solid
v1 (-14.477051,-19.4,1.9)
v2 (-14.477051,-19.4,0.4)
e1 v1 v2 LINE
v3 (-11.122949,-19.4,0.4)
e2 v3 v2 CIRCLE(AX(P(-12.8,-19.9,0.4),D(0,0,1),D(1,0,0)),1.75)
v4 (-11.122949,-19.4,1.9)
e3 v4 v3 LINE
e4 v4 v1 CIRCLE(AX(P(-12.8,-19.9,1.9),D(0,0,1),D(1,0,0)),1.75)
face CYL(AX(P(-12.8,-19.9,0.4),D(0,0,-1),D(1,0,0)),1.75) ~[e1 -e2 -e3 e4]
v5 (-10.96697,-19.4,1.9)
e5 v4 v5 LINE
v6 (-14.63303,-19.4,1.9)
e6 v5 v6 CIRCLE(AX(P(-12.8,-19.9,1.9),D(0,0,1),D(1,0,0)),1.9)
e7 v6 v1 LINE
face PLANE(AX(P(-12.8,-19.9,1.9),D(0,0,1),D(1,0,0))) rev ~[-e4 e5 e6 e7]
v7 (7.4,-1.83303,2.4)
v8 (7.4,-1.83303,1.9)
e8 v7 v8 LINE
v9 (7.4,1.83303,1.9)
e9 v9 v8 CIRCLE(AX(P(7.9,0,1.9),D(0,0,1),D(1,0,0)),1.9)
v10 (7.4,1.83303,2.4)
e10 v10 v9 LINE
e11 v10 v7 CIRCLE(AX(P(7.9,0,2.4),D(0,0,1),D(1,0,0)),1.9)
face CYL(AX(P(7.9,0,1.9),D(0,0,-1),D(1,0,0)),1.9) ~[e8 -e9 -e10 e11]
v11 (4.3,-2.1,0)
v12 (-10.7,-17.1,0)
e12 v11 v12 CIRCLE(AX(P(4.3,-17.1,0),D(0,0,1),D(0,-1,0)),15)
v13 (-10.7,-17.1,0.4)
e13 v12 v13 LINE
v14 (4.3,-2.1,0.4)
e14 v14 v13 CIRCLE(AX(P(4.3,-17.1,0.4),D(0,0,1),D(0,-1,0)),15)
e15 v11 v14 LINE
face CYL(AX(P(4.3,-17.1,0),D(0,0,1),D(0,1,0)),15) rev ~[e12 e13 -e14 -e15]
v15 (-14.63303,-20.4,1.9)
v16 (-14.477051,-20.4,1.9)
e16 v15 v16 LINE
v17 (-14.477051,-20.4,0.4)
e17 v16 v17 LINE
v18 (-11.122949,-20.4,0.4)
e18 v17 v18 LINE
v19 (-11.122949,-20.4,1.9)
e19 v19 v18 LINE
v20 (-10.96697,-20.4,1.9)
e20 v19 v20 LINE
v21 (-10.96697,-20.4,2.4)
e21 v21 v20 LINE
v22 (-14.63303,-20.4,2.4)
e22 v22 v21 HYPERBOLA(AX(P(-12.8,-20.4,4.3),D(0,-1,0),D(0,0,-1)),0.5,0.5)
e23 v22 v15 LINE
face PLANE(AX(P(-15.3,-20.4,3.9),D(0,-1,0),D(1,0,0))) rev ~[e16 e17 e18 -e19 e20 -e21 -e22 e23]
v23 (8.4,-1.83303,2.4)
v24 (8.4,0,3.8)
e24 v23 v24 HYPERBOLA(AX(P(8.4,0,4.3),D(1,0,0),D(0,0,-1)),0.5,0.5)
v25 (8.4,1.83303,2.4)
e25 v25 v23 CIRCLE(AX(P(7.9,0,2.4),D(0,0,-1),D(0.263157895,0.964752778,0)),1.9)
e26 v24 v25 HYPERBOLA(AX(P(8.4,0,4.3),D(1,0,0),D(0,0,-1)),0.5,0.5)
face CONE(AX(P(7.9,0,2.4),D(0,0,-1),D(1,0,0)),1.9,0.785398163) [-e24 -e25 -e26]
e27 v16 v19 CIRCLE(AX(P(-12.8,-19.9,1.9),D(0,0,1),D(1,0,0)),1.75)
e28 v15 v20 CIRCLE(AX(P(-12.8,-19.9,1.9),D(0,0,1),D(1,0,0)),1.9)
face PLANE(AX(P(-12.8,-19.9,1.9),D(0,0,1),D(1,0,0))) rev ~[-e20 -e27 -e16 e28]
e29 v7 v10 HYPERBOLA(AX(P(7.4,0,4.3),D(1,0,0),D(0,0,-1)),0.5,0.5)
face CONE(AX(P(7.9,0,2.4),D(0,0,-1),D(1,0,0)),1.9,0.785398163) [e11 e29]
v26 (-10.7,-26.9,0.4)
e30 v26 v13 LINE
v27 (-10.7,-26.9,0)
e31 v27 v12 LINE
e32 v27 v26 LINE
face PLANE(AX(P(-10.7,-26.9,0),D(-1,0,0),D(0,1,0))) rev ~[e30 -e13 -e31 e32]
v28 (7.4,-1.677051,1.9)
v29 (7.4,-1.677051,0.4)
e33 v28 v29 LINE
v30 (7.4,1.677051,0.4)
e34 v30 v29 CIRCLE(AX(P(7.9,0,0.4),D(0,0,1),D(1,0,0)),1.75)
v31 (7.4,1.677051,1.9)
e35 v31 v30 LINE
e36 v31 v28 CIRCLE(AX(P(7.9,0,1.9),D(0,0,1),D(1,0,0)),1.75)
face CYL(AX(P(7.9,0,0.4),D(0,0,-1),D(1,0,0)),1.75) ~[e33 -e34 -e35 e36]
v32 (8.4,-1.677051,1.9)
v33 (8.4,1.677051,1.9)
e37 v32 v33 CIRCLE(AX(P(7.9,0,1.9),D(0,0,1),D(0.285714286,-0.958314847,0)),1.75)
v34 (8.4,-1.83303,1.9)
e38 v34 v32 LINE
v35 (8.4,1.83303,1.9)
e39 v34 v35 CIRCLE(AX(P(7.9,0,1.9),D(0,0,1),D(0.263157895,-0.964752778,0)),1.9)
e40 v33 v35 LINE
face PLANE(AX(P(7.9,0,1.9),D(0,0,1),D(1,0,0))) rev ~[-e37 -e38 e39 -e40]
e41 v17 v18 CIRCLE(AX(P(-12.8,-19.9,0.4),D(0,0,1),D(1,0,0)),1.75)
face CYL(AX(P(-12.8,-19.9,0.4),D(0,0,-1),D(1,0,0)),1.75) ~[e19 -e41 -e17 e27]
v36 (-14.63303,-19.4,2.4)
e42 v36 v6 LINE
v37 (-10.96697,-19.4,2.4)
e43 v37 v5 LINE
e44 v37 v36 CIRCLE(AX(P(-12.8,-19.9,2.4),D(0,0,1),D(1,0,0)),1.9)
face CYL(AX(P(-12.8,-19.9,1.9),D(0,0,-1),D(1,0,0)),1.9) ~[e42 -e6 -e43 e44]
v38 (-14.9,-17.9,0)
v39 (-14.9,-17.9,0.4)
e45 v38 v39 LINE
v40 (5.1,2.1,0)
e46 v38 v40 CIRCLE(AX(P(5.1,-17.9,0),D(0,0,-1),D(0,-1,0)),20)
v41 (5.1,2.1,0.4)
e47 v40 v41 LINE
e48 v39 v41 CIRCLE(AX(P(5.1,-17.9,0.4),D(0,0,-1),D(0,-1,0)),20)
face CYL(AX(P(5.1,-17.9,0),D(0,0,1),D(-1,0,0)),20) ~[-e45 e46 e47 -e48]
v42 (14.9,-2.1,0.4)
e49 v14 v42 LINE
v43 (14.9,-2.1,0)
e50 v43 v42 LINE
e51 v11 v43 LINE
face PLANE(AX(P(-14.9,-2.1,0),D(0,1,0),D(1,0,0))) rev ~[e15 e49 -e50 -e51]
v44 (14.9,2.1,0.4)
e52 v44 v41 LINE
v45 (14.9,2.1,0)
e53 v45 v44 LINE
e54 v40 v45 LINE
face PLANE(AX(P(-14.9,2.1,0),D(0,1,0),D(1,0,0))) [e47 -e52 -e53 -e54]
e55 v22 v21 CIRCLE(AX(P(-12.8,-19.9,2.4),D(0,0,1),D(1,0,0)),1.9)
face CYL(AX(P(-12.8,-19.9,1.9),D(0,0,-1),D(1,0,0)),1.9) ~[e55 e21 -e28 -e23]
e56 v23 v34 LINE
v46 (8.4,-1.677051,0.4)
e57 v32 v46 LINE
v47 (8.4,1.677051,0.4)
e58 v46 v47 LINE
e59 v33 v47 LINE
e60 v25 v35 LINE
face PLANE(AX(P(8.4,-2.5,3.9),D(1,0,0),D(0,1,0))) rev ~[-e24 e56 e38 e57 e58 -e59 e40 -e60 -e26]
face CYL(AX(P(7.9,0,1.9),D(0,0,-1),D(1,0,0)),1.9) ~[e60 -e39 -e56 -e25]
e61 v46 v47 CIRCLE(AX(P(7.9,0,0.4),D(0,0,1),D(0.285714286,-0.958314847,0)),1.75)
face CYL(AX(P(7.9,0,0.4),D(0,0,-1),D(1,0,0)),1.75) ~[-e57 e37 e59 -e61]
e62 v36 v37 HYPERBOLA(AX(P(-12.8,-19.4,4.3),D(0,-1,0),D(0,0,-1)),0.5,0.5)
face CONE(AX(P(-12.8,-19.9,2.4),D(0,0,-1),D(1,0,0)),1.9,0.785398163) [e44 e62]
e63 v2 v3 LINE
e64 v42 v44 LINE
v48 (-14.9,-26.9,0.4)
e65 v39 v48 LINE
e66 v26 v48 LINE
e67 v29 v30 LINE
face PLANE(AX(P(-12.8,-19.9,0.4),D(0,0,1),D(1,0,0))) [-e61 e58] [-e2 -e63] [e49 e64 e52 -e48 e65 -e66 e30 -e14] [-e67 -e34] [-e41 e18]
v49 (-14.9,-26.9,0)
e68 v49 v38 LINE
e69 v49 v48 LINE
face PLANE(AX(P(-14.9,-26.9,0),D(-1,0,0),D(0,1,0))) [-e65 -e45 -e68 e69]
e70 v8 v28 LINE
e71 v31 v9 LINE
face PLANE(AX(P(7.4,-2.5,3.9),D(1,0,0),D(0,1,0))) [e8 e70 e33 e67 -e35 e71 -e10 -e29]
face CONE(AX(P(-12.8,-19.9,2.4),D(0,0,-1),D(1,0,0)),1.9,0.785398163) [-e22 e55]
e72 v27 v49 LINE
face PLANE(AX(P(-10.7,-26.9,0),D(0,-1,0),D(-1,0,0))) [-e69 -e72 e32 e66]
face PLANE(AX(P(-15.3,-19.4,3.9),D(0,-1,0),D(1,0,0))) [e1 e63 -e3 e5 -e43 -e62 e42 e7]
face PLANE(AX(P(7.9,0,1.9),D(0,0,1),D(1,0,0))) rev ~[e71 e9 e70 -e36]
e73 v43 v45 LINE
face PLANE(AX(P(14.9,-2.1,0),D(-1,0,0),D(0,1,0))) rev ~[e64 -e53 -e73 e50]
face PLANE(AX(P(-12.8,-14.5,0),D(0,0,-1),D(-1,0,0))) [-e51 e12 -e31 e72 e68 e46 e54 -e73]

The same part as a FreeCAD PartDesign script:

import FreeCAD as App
import Part
import Sketcher

V = App.Vector


def edges_at(feature, points):
    """Names of the edges that pass closest to the given points."""
    edges = feature.Shape.Edges
    near = lambda p: min(range(len(edges)), key=lambda i: edges[i].distToShape(Part.Vertex(*p))[0])
    return sorted({f"Edge{near(p) + 1}" for p in points})

doc = App.newDocument("Part")
body = doc.addObject("PartDesign::Body", "Body")

sketch1 = doc.addObject("Sketcher::SketchObject", "Sketch")
body.addObject(sketch1)
sketch1.AttachmentSupport = (doc.XY_Plane, [""])
sketch1.MapMode = "FlatFace"
sketch1.addGeometry([
    Part.LineSegment(V(-14.9, 2.1, 0), V(-14.9, -2.1, 0)),
    Part.LineSegment(V(-14.9, -2.1, 0), V(14.9, -2.1, 0)),
    Part.LineSegment(V(14.9, -2.1, 0), V(14.9, 2.1, 0)),
    Part.LineSegment(V(14.9, 2.1, 0), V(-14.9, 2.1, 0)),
], False)
sketch1.addConstraint([
    Sketcher.Constraint("Coincident", 0, 2, 1, 1),
    Sketcher.Constraint("Coincident", 1, 2, 2, 1),
    Sketcher.Constraint("Coincident", 2, 2, 3, 1),
    Sketcher.Constraint("Coincident", 3, 2, 0, 1),
    Sketcher.Constraint("Vertical", 0),
    Sketcher.Constraint("Horizontal", 1),
    Sketcher.Constraint("Vertical", 2),
    Sketcher.Constraint("Horizontal", 3),
    Sketcher.Constraint("Symmetric", 0, 2, 2, 2, -1, 1),
    Sketcher.Constraint("DistanceX", 1, 1, 1, 2, 29.8),
    Sketcher.Constraint("DistanceY", 0, 2, 0, 1, 4.2),
])
pad1 = doc.addObject("PartDesign::Pad", "Pad")
body.addObject(pad1)
pad1.Profile = sketch1
pad1.Length = 0.4

sketch2 = doc.addObject("Sketcher::SketchObject", "Sketch001")
body.addObject(sketch2)
sketch2.AttachmentSupport = (doc.XY_Plane, [""])
sketch2.MapMode = "FlatFace"
sketch2.AttachmentOffset = App.Placement(V(0, 0, 0.4), App.Rotation())
sketch2.addGeometry(Part.Circle(V(7.9, 0, 0), V(0, 0, 1), 1.75), False)
sketch2.addConstraint([
    Sketcher.Constraint("PointOnObject", 0, 3, -1),
    Sketcher.Constraint("Diameter", 0, 3.5),
    Sketcher.Constraint("DistanceX", -1, 1, 0, 3, 7.9),
])
pad2 = doc.addObject("PartDesign::Pad", "Pad001")
body.addObject(pad2)
pad2.Profile = sketch2
pad2.Length = 1.5

sketch3 = doc.addObject("Sketcher::SketchObject", "Sketch002")
body.addObject(sketch3)
sketch3.AttachmentSupport = (doc.XY_Plane, [""])
sketch3.MapMode = "FlatFace"
sketch3.AttachmentOffset = App.Placement(V(0, 0, 1.9), App.Rotation())
sketch3.addGeometry(Part.Circle(V(7.9, 0, 0), V(0, 0, 1), 1.9), False)
sketch3.addConstraint([
    Sketcher.Constraint("PointOnObject", 0, 3, -1),
    Sketcher.Constraint("Diameter", 0, 3.8),
    Sketcher.Constraint("DistanceX", -1, 1, 0, 3, 7.9),
])
pad3 = doc.addObject("PartDesign::Pad", "Pad002")
body.addObject(pad3)
pad3.Profile = sketch3
pad3.Length = 2
doc.recompute()

chamfer = doc.addObject("PartDesign::Chamfer", "Chamfer")
body.addObject(chamfer)
chamfer.Base = (pad3, edges_at(pad3, [(6, 0, 3.9)]))
chamfer.Size = 1.5

sketch4 = doc.addObject("Sketcher::SketchObject", "Sketch003")
body.addObject(sketch4)
sketch4.AttachmentSupport = (doc.XY_Plane, [""])
sketch4.MapMode = "FlatFace"
sketch4.AttachmentOffset = App.Placement(V(0, 0, 3.9), App.Rotation())
sketch4.addGeometry([
    Part.LineSegment(V(7.4, 2.5, 0), V(7.4, -2.5, 0)),
    Part.LineSegment(V(7.4, -2.5, 0), V(8.4, -2.5, 0)),
    Part.LineSegment(V(8.4, -2.5, 0), V(8.4, 2.5, 0)),
    Part.LineSegment(V(8.4, 2.5, 0), V(7.4, 2.5, 0)),
], False)
sketch4.addConstraint([
    Sketcher.Constraint("Coincident", 0, 2, 1, 1),
    Sketcher.Constraint("Coincident", 1, 2, 2, 1),
    Sketcher.Constraint("Coincident", 2, 2, 3, 1),
    Sketcher.Constraint("Coincident", 3, 2, 0, 1),
    Sketcher.Constraint("Vertical", 0),
    Sketcher.Constraint("Horizontal", 1),
    Sketcher.Constraint("Vertical", 2),
    Sketcher.Constraint("Horizontal", 3),
    Sketcher.Constraint("DistanceX", 1, 1, 1, 2, 1.0),
    Sketcher.Constraint("DistanceY", 0, 2, 0, 1, 5.0),
    Sketcher.Constraint("DistanceX", -1, 1, 0, 2, 7.4),
    Sketcher.Constraint("DistanceY", 0, 2, -1, 1, 2.5),
])
pocket1 = doc.addObject("PartDesign::Pocket", "Pocket")
body.addObject(pocket1)
pocket1.Profile = sketch4
pocket1.Length = 3.5

sketch5 = doc.addObject("Sketcher::SketchObject", "Sketch004")
body.addObject(sketch5)
sketch5.AttachmentSupport = (doc.XY_Plane, [""])
sketch5.MapMode = "FlatFace"
sketch5.addGeometry([
    Part.LineSegment(V(-10.7, -2.1, 0), V(-10.7, -26.9, 0)),
    Part.LineSegment(V(-10.7, -26.9, 0), V(-14.9, -26.9, 0)),
    Part.LineSegment(V(-14.9, -26.9, 0), V(-14.9, -2.1, 0)),
    Part.LineSegment(V(-14.9, -2.1, 0), V(-10.7, -2.1, 0)),
], False)
sketch5.addConstraint([
    Sketcher.Constraint("Coincident", 0, 2, 1, 1),
    Sketcher.Constraint("Coincident", 1, 2, 2, 1),
    Sketcher.Constraint("Coincident", 2, 2, 3, 1),
    Sketcher.Constraint("Coincident", 3, 2, 0, 1),
    Sketcher.Constraint("Vertical", 0),
    Sketcher.Constraint("Horizontal", 1),
    Sketcher.Constraint("Vertical", 2),
    Sketcher.Constraint("Horizontal", 3),
    Sketcher.Constraint("DistanceX", 1, 2, 1, 1, 4.2),
    Sketcher.Constraint("DistanceY", 0, 2, 0, 1, 24.8),
    Sketcher.Constraint("DistanceX", 0, 2, -1, 1, 10.7),
    Sketcher.Constraint("DistanceY", 0, 2, -1, 1, 26.9),
])
pad4 = doc.addObject("PartDesign::Pad", "Pad003")
body.addObject(pad4)
pad4.Profile = sketch5
pad4.Length = 0.4

sketch6 = doc.addObject("Sketcher::SketchObject", "Sketch005")
body.addObject(sketch6)
sketch6.AttachmentSupport = (doc.XY_Plane, [""])
sketch6.MapMode = "FlatFace"
sketch6.AttachmentOffset = App.Placement(V(0, 0, 0.4), App.Rotation())
sketch6.addGeometry(Part.Circle(V(-12.8, -19.9, 0), V(0, 0, 1), 1.75), False)
sketch6.addConstraint([
    Sketcher.Constraint("Diameter", 0, 3.5),
    Sketcher.Constraint("DistanceX", 0, 3, -1, 1, 12.8),
    Sketcher.Constraint("DistanceY", 0, 3, -1, 1, 19.9),
])
pad5 = doc.addObject("PartDesign::Pad", "Pad004")
body.addObject(pad5)
pad5.Profile = sketch6
pad5.Length = 1.5

sketch7 = doc.addObject("Sketcher::SketchObject", "Sketch006")
body.addObject(sketch7)
sketch7.AttachmentSupport = (doc.XY_Plane, [""])
sketch7.MapMode = "FlatFace"
sketch7.AttachmentOffset = App.Placement(V(0, 0, 1.9), App.Rotation())
sketch7.addGeometry(Part.Circle(V(-12.8, -19.9, 0), V(0, 0, 1), 1.9), False)
sketch7.addConstraint([
    Sketcher.Constraint("Diameter", 0, 3.8),
    Sketcher.Constraint("DistanceX", 0, 3, -1, 1, 12.8),
    Sketcher.Constraint("DistanceY", 0, 3, -1, 1, 19.9),
])
pad6 = doc.addObject("PartDesign::Pad", "Pad005")
body.addObject(pad6)
pad6.Profile = sketch7
pad6.Length = 2
doc.recompute()

chamfer2 = doc.addObject("PartDesign::Chamfer", "Chamfer001")
body.addObject(chamfer2)
chamfer2.Base = (pad6, edges_at(pad6, [(-14.7, -19.9, 3.9)]))
chamfer2.Size = 1.5

sketch8 = doc.addObject("Sketcher::SketchObject", "Sketch007")
body.addObject(sketch8)
sketch8.AttachmentSupport = (doc.XY_Plane, [""])
sketch8.MapMode = "FlatFace"
sketch8.AttachmentOffset = App.Placement(V(0, 0, 3.9), App.Rotation())
sketch8.addGeometry([
    Part.LineSegment(V(-15.3, -19.4, 0), V(-15.3, -20.4, 0)),
    Part.LineSegment(V(-15.3, -20.4, 0), V(-10.3, -20.4, 0)),
    Part.LineSegment(V(-10.3, -20.4, 0), V(-10.3, -19.4, 0)),
    Part.LineSegment(V(-10.3, -19.4, 0), V(-15.3, -19.4, 0)),
], False)
sketch8.addConstraint([
    Sketcher.Constraint("Coincident", 0, 2, 1, 1),
    Sketcher.Constraint("Coincident", 1, 2, 2, 1),
    Sketcher.Constraint("Coincident", 2, 2, 3, 1),
    Sketcher.Constraint("Coincident", 3, 2, 0, 1),
    Sketcher.Constraint("Vertical", 0),
    Sketcher.Constraint("Horizontal", 1),
    Sketcher.Constraint("Vertical", 2),
    Sketcher.Constraint("Horizontal", 3),
    Sketcher.Constraint("DistanceX", 1, 1, 1, 2, 5.0),
    Sketcher.Constraint("DistanceY", 0, 2, 0, 1, 1.0),
    Sketcher.Constraint("DistanceX", 0, 2, -1, 1, 15.3),
    Sketcher.Constraint("DistanceY", 0, 2, -1, 1, 20.4),
])
pocket2 = doc.addObject("PartDesign::Pocket", "Pocket001")
body.addObject(pocket2)
pocket2.Profile = sketch8
pocket2.Length = 3.5
doc.recompute()

fillet = doc.addObject("PartDesign::Fillet", "Fillet")
body.addObject(fillet)
fillet.Base = (pocket2, edges_at(pocket2, [(-10.7, -2.1, 0.2)]))
fillet.Radius = 15
doc.recompute()

fillet2 = doc.addObject("PartDesign::Fillet", "Fillet001")
body.addObject(fillet2)
fillet2.Base = (fillet, edges_at(fillet, [(-14.9, 2.1, 0.2)]))
fillet2.Radius = 20

doc.recompute()
